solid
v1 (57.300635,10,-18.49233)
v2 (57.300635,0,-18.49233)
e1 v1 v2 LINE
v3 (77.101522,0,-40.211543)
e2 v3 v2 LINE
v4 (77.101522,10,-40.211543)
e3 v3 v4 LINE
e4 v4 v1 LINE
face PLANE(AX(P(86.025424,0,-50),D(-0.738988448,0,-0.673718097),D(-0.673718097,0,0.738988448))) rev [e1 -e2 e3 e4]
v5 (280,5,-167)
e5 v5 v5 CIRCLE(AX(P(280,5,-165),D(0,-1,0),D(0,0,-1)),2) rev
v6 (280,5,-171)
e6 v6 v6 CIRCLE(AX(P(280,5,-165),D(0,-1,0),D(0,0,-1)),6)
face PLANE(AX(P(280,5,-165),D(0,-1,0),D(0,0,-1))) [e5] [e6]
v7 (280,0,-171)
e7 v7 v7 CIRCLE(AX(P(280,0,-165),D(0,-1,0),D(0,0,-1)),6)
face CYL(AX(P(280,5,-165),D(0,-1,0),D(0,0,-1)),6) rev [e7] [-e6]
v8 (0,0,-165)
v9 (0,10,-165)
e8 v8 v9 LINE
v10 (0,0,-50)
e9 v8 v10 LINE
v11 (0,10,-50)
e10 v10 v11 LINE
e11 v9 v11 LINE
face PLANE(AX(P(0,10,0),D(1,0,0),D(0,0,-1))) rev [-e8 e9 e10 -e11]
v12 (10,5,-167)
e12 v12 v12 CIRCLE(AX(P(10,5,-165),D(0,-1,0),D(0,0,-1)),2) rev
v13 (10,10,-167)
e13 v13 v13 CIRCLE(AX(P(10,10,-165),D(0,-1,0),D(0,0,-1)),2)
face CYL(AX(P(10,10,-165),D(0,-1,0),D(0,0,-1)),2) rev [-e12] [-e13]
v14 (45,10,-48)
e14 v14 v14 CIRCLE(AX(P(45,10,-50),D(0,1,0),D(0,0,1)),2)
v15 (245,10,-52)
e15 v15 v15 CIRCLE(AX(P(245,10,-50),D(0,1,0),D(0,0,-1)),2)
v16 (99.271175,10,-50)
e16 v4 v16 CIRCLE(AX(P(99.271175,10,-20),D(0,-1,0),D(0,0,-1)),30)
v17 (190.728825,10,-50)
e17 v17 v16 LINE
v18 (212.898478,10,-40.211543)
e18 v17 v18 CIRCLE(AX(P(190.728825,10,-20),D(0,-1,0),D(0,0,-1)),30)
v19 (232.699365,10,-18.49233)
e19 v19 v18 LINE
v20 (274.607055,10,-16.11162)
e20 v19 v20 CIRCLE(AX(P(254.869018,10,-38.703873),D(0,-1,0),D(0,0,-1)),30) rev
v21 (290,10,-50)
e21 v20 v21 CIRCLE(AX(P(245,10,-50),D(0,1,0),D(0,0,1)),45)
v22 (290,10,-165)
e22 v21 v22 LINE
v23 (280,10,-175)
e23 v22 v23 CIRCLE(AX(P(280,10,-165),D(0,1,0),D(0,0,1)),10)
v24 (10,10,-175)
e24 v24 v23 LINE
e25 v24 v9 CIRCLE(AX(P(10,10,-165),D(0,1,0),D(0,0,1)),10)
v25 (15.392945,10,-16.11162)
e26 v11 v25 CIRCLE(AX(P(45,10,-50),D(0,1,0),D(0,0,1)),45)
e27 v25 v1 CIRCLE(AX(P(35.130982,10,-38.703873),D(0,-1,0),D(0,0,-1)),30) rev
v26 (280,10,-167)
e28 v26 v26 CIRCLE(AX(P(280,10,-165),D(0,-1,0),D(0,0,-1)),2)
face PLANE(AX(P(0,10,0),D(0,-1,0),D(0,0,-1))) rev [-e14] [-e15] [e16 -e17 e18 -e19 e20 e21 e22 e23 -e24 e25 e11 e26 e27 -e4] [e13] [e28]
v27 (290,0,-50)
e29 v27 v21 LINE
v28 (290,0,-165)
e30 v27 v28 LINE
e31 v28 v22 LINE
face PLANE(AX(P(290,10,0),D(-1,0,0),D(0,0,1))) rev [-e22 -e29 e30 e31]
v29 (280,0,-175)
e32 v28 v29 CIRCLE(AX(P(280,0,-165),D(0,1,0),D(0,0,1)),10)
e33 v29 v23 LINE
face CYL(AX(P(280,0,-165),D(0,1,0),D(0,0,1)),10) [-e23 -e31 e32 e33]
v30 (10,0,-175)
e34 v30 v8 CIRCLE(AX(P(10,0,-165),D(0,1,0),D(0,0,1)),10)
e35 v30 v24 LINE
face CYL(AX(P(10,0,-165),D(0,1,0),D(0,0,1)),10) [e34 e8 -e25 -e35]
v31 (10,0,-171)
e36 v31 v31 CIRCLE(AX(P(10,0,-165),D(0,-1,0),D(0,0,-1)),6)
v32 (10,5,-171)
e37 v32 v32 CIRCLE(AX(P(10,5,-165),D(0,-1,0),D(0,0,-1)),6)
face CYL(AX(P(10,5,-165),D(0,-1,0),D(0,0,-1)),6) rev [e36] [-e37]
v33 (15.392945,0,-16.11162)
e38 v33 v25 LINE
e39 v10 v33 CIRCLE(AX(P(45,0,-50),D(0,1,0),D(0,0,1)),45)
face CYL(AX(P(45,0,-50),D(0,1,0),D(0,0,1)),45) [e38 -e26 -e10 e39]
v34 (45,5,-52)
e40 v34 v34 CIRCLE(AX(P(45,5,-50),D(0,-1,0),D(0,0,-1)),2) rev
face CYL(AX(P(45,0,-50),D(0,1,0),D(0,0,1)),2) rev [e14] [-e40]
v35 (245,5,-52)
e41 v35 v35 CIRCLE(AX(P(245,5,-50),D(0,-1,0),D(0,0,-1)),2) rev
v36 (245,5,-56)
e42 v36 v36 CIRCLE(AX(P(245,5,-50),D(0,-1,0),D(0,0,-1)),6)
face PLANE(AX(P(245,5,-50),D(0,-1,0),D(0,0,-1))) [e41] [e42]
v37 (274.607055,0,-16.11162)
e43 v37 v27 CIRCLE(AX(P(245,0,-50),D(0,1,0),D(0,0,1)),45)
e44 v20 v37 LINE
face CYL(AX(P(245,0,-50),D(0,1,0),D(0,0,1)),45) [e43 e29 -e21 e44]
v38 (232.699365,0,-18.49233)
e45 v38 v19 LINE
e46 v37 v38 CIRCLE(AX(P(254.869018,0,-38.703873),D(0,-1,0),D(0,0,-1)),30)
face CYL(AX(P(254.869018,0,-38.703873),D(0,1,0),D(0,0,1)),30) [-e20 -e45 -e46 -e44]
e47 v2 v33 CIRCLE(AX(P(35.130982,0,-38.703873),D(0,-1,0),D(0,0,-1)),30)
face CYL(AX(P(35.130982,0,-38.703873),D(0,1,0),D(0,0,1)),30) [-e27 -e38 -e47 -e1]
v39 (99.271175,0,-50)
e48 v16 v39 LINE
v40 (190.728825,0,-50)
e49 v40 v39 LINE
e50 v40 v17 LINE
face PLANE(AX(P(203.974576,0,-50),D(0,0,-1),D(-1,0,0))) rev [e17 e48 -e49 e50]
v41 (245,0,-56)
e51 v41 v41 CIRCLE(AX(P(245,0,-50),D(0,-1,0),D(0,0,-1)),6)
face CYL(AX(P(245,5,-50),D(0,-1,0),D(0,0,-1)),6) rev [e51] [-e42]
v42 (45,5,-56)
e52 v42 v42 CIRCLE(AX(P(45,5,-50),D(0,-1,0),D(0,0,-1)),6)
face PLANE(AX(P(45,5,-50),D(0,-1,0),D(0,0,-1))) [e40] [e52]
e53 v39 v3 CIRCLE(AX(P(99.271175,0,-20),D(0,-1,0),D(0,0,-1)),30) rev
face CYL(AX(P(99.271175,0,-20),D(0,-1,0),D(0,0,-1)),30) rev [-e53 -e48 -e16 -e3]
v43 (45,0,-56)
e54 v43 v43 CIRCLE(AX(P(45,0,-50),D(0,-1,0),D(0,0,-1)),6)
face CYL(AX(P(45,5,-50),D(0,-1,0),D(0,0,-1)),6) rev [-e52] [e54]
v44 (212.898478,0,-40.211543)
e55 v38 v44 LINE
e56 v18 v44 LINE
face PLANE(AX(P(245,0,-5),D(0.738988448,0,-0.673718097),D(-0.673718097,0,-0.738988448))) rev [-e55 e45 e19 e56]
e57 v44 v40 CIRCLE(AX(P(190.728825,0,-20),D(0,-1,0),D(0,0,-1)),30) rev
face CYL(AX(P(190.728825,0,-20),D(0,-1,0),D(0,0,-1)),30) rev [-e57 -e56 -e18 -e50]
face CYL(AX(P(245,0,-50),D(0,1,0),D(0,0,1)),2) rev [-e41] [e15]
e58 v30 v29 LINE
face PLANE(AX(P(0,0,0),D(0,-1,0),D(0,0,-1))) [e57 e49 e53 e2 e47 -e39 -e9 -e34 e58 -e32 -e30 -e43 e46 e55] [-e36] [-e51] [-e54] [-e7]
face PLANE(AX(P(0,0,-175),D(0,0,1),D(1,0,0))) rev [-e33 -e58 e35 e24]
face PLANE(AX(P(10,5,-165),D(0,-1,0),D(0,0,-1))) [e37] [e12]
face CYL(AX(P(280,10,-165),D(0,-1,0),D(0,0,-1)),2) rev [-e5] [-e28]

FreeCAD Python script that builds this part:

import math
import FreeCAD as App
import Part
import Sketcher

V = App.Vector
Q = App.Units.Quantity


def edges_at(feature, points):
    """Names of the edges that pass closest to the given points."""
    edges = feature.Shape.Edges
    near = lambda p: min(range(len(edges)), key=lambda i: edges[i].distToShape(Part.Vertex(*p))[0])
    return sorted({f"Edge{near(p) + 1}" for p in points})


def add_polygon(sketch, points):
    """Adds a closed chain of lines whose ends are joined by coincident constraints."""
    first, n = sketch.GeometryCount, len(points)
    for a, b in zip(points, points[1:] + points[:1]):
        sketch.addGeometry(Part.LineSegment(App.Vector(*a, 0), App.Vector(*b, 0)), False)
    for i in range(n):
        sketch.addConstraint(Sketcher.Constraint("Coincident", first + i, 2, first + (i + 1) % n, 1))

doc = App.newDocument("Part")
params = doc.addObject("Spreadsheet::Sheet", "Params")
for row, (alias, value) in enumerate([
    ("sketch1_width", "290 mm"),
    ("sketch1_height", "184.53 mm"),
    ("pad1_length", "10 mm"),
    ("sketch2_diameter", "4 mm"),
    ("pocket1_length", "10 mm"),
    ("sketch3_diameter", "4 mm"),
    ("pocket2_length", "10 mm"),
    ("sketch4_radius", "10 mm"),
    ("sketch4_radius2", "45 mm"),
    ("sketch4_width", "270 mm"),
    ("sketch4_height", "50 mm"),
    ("sketch4_height2", "19.53 mm"),
    ("pocket3_length", "10 mm"),
    ("sketch5_width", "200 mm"),
    ("pocket4_length", "10 mm"),
    ("fillet_radius", "30 mm"),
    ("fillet2_radius", "30 mm"),
    ("sketch6_diameter", "12 mm"),
    ("pocket5_length", "5 mm"),
], start=1):
    params.set(f"A{row}", alias)
    params.set(f"B{row}", "=" + value)
    params.setAlias(f"B{row}", alias)

body = doc.addObject("PartDesign::Body", "Body")

sketch1 = body.newObject("Sketcher::SketchObject", "Sketch")
sketch1.AttachmentSupport = (doc.getObject("XZ_Plane"), [""])
sketch1.MapMode = "FlatFace"
add_polygon(sketch1, [(0, -185), (0, 0), (290, 0), (290, -185)])
sketch1.addConstraint([
    Sketcher.Constraint("Vertical", 0),
    Sketcher.Constraint("Horizontal", 1),
    Sketcher.Constraint("Vertical", 2),
    Sketcher.Constraint("Horizontal", 3),
    Sketcher.Constraint("Coincident", 0, 2, -1, 1),
    Sketcher.Constraint("DistanceX", 1, 1, 1, 2, Q("290 mm")),
    Sketcher.Constraint("DistanceY", 0, 1, 0, 2, Q("184.53 mm")),
])
sketch1.setExpression("Constraints[9]", "Params.sketch1_width")
sketch1.setExpression("Constraints[10]", "Params.sketch1_height")
pad1 = body.newObject("PartDesign::Pad", "Pad")
pad1.Profile = sketch1
pad1.setExpression("Length", "Params.pad1_length")
pad1.Reversed = True

sketch2 = body.newObject("Sketcher::SketchObject", "Sketch001")
sketch2.AttachmentSupport = (doc.getObject("XZ_Plane"), [""])
sketch2.MapMode = "FlatFace"
sketch2.AttachmentOffset = App.Placement(V(0, 0, -10), App.Rotation())
sketch2.addGeometry([
    Part.Circle(V(45, -50, 0), V(0, 0, 1), 2),
    Part.Circle(V(245, -50, 0), V(0, 0, 1), 2),
], False)
sketch2.addConstraint([
    Sketcher.Constraint("Equal", 0, 1),
    Sketcher.Constraint("Horizontal", 0, 3, 1, 3),
    Sketcher.Constraint("Diameter", 0, Q("4 mm")),
    Sketcher.Constraint("DistanceX", -1, 1, 0, 3, Q("45 mm")),
    Sketcher.Constraint("DistanceY", 0, 3, -1, 1, Q("50 mm")),
    Sketcher.Constraint("DistanceX", -1, 1, 1, 3, Q("245 mm")),
])
sketch2.setExpression("Constraints[2]", "Params.sketch2_diameter")
pocket1 = body.newObject("PartDesign::Pocket", "Pocket")
pocket1.Profile = sketch2
pocket1.setExpression("Length", "Params.pocket1_length")
pocket1.Reversed = True

sketch3 = body.newObject("Sketcher::SketchObject", "Sketch002")
sketch3.AttachmentSupport = (doc.getObject("XZ_Plane"), [""])
sketch3.MapMode = "FlatFace"
sketch3.addGeometry([
    Part.Circle(V(10, -165, 0), V(0, 0, 1), 2),
    Part.Circle(V(280, -165, 0), V(0, 0, 1), 2),
], False)
sketch3.addConstraint([
    Sketcher.Constraint("Equal", 0, 1),
    Sketcher.Constraint("Horizontal", 0, 3, 1, 3),
    Sketcher.Constraint("Diameter", 0, Q("4 mm")),
    Sketcher.Constraint("DistanceX", -1, 1, 0, 3, Q("10 mm")),
    Sketcher.Constraint("DistanceY", 0, 3, -1, 1, Q("165 mm")),
    Sketcher.Constraint("DistanceX", -1, 1, 1, 3, Q("280 mm")),
])
sketch3.setExpression("Constraints[2]", "Params.sketch3_diameter")
pocket2 = body.newObject("PartDesign::Pocket", "Pocket001")
pocket2.Profile = sketch3
pocket2.setExpression("Length", "Params.pocket2_length")

sketch4 = body.newObject("Sketcher::SketchObject", "Sketch003")
sketch4.AttachmentSupport = (doc.getObject("XZ_Plane"), [""])
sketch4.MapMode = "FlatFace"
sketch4.AttachmentOffset = App.Placement(V(0, 0, -10), App.Rotation())
sketch4.addGeometry([
    Part.LineSegment(V(0, -185, 0), V(0, -165, 0)),
    Part.ArcOfCircle(Part.Circle(V(10, -165, 0), V(0, 0, 1), 10), math.radians(180), math.radians(270)),
    Part.LineSegment(V(10, -175, 0), V(280, -175, 0)),
    Part.ArcOfCircle(Part.Circle(V(280, -165, 0), V(0, 0, 1), 10), math.radians(-90), math.radians(0)),
    Part.LineSegment(V(290, -165, 0), V(290, -185, 0)),
    Part.LineSegment(V(290, -185, 0), V(0, -185, 0)),
    Part.LineSegment(V(245, -5, 0), V(45, -5, 0)),
    Part.ArcOfCircle(Part.Circle(V(45, -50, 0), V(0, 0, 1), 45), math.radians(90), math.radians(180)),
    Part.LineSegment(V(0, -50, 0), V(0, 0, 0)),
    Part.LineSegment(V(0, 0, 0), V(290, 0, 0)),
    Part.LineSegment(V(290, 0, 0), V(290, -50, 0)),
    Part.ArcOfCircle(Part.Circle(V(245, -50, 0), V(0, 0, 1), 45), math.radians(0), math.radians(90)),
], False)
sketch4.addConstraint([
    Sketcher.Constraint("Tangent", 0, 2, 1, 1),
    Sketcher.Constraint("Tangent", 1, 2, 2, 1),
    Sketcher.Constraint("Tangent", 2, 2, 3, 1),
    Sketcher.Constraint("Tangent", 3, 2, 4, 1),
    Sketcher.Constraint("Coincident", 4, 2, 5, 1),
    Sketcher.Constraint("Coincident", 5, 2, 0, 1),
    Sketcher.Constraint("Tangent", 6, 2, 7, 1),
    Sketcher.Constraint("Tangent", 7, 2, 8, 1),
    Sketcher.Constraint("Coincident", 8, 2, 9, 1),
    Sketcher.Constraint("Coincident", 9, 2, 10, 1),
    Sketcher.Constraint("Tangent", 10, 2, 11, 1),
    Sketcher.Constraint("Tangent", 11, 2, 6, 1),
    Sketcher.Constraint("Vertical", 0),
    Sketcher.Constraint("Horizontal", 2),
    Sketcher.Constraint("Vertical", 4),
    Sketcher.Constraint("Horizontal", 5),
    Sketcher.Constraint("Horizontal", 6),
    Sketcher.Constraint("Vertical", 8),
    Sketcher.Constraint("Horizontal", 9),
    Sketcher.Constraint("Vertical", 10),
    Sketcher.Constraint("Coincident", 8, 2, -1, 1),
    Sketcher.Constraint("Equal", 1, 3),
    Sketcher.Constraint("Equal", 7, 11),
    Sketcher.Constraint("PointOnObject", 0, 2, -2),
    Sketcher.Constraint("Vertical", 4, 2, 9, 2),
    Sketcher.Constraint("Radius", 1, Q("10 mm")),
    Sketcher.Constraint("Radius", 7, Q("45 mm")),
    Sketcher.Constraint("DistanceX", 2, 1, 2, 2, Q("270 mm")),
    Sketcher.Constraint("DistanceY", 8, 1, 8, 2, Q("50 mm")),
    Sketcher.Constraint("DistanceY", 1, 3, -1, 1, Q("165 mm")),
    Sketcher.Constraint("DistanceY", 0, 1, 0, 2, Q("19.53 mm")),
])
sketch4.setExpression("Constraints[25]", "Params.sketch4_radius")
sketch4.setExpression("Constraints[26]", "Params.sketch4_radius2")
sketch4.setExpression("Constraints[27]", "Params.sketch4_width")
sketch4.setExpression("Constraints[28]", "Params.sketch4_height")
sketch4.setExpression("Constraints[30]", "Params.sketch4_height2")
pocket3 = body.newObject("PartDesign::Pocket", "Pocket002")
pocket3.Profile = sketch4
pocket3.setExpression("Length", "Params.pocket3_length")
pocket3.Reversed = True

sketch5 = body.newObject("Sketcher::SketchObject", "Sketch004")
sketch5.AttachmentSupport = (doc.getObject("XZ_Plane"), [""])
sketch5.MapMode = "FlatFace"
sketch5.AttachmentOffset = App.Placement(V(0, 0, -10), App.Rotation())
add_polygon(sketch5, [(245, -5), (204, -50), (86, -50), (45, -5)])
sketch5.addConstraint([
    Sketcher.Constraint("Horizontal", 1),
    Sketcher.Constraint("Horizontal", 3),
    Sketcher.Constraint("Equal", 0, 2),
    Sketcher.Constraint("DistanceX", 3, 1, 3, 2, Q("200 mm")),
    Sketcher.Constraint("DistanceY", 0, 2, -1, 1, Q("50 mm")),
    Sketcher.Constraint("DistanceX", -1, 1, 2, 2, Q("45 mm")),
    Sketcher.Constraint("DistanceY", 2, 2, -1, 1, Q("5 mm")),
    Sketcher.Constraint("Distance", 0, Q("60.894051 mm")),
])
sketch5.setExpression("Constraints[7]", "Params.sketch5_width")
pocket4 = body.newObject("PartDesign::Pocket", "Pocket003")
pocket4.Profile = sketch5
pocket4.setExpression("Length", "Params.pocket4_length")
pocket4.Reversed = True
doc.recompute()

fillet = body.newObject("PartDesign::Fillet", "Fillet")
fillet.Base = (pocket4, edges_at(pocket4, [(86.025, 5, -50), (203.975, 5, -50)]))
fillet.setExpression("Radius", "Params.fillet_radius")
doc.recompute()

fillet2 = body.newObject("PartDesign::Fillet", "Fillet001")
fillet2.Base = (fillet, edges_at(fillet, [(45, 5, -5), (245, 5, -5)]))
fillet2.setExpression("Radius", "Params.fillet2_radius")

sketch6 = body.newObject("Sketcher::SketchObject", "Sketch005")
sketch6.AttachmentSupport = (doc.getObject("XZ_Plane"), [""])
sketch6.MapMode = "FlatFace"
sketch6.addGeometry([
    Part.Circle(V(45, -50, 0), V(0, 0, 1), 6),
    Part.Circle(V(245, -50, 0), V(0, 0, 1), 6),
    Part.Circle(V(280, -165, 0), V(0, 0, 1), 6),
    Part.Circle(V(10, -165, 0), V(0, 0, 1), 6),
], False)
sketch6.addConstraint([
    Sketcher.Constraint("Equal", 0, 1),
    Sketcher.Constraint("Equal", 1, 2),
    Sketcher.Constraint("Equal", 2, 3),
    Sketcher.Constraint("Horizontal", 0, 3, 1, 3),
    Sketcher.Constraint("Horizontal", 2, 3, 3, 3),
    Sketcher.Constraint("Diameter", 0, Q("12 mm")),
    Sketcher.Constraint("DistanceX", -1, 1, 0, 3, Q("45 mm")),
    Sketcher.Constraint("DistanceY", 0, 3, -1, 1, Q("50 mm")),
    Sketcher.Constraint("DistanceX", -1, 1, 1, 3, Q("245 mm")),
    Sketcher.Constraint("DistanceX", -1, 1, 2, 3, Q("280 mm")),
    Sketcher.Constraint("DistanceY", 2, 3, -1, 1, Q("165 mm")),
    Sketcher.Constraint("DistanceX", -1, 1, 3, 3, Q("10 mm")),
])
sketch6.setExpression("Constraints[5]", "Params.sketch6_diameter")
pocket5 = body.newObject("PartDesign::Pocket", "Pocket004")
pocket5.Profile = sketch6
pocket5.setExpression("Length", "Params.pocket5_length")

doc.recompute()
